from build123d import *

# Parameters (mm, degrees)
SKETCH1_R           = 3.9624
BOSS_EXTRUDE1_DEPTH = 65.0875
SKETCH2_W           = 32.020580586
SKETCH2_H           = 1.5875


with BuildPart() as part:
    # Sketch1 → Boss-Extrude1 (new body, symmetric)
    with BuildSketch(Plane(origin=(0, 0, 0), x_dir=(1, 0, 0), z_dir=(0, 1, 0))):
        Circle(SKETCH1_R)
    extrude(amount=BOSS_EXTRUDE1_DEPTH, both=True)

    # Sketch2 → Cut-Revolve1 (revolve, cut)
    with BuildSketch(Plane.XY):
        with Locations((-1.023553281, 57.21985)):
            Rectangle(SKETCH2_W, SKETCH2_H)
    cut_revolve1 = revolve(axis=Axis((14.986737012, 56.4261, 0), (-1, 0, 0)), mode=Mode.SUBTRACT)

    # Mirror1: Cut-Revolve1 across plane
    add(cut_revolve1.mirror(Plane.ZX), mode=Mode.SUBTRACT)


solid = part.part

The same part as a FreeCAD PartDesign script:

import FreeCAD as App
import Part
import Sketcher
from FreeCAD import Vector
Q = App.Units.Quantity


def add_polygon(sketch, points):
    """Adds a closed chain of lines whose ends are joined by coincident constraints."""
    first, n = sketch.GeometryCount, len(points)
    for a, b in zip(points, points[1:] + points[:1]):
        sketch.addGeometry(Part.LineSegment(App.Vector(*a, 0), App.Vector(*b, 0)), False)
    for i in range(n):
        sketch.addConstraint(Sketcher.Constraint("Coincident", first + i, 2, first + (i + 1) % n, 1))

doc = App.newDocument("Part")
body = doc.addObject("PartDesign::Body", "Body")

# Sketch on XZ plane
sketch1 = doc.addObject("Sketcher::SketchObject", "Sketch")
body.addObject(sketch1)
sketch1.AttachmentSupport = (doc.XZ_Plane, [""])
sketch1.MapMode = "FlatFace"
sketch1.addGeometry(Part.Circle(Vector(0, 0, 0), Vector(0, 0, 1), 4), False)
sketch1.addConstraint([
    Sketcher.Constraint("Coincident", 0, 3, -1, 1),
    Sketcher.Constraint("Diameter", 0, Q("0.312 in")),
])
pad1 = doc.addObject("PartDesign::Pad", "Pad")
body.addObject(pad1)
pad1.Profile = sketch1
pad1.Length = Q("5.125 in")
pad1.Midplane = True

# Sketch on XY plane
sketch2 = doc.addObject("Sketcher::SketchObject", "Sketch001")
body.addObject(sketch2)
sketch2.AttachmentSupport = (doc.XY_Plane, [""])
sketch2.MapMode = "FlatFace"
add_polygon(sketch2, [(-17, 58), (-17, 56.4), (15, 56.4), (15, 58)])  # lines 0-3
sketch2.addGeometry(Part.LineSegment(Vector(15, 56.4, 0), Vector(-17, 56.4, 0)), True)  # axis
sketch2.addConstraint([
    Sketcher.Constraint("Vertical", 0),
    Sketcher.Constraint("Horizontal", 1),
    Sketcher.Constraint("Vertical", 2),
    Sketcher.Constraint("Horizontal", 3),
    Sketcher.Constraint("Horizontal", 4),
    Sketcher.Constraint("Coincident", 4, 1, 1, 2),
    Sketcher.Constraint("Vertical", 3, 2, 4, 2),
    Sketcher.Constraint("DistanceY", 0, 2, 0, 1, Q("0.0625 in")),
    Sketcher.Constraint("DistanceY", -1, 1, 2, 2, Q("2.284 in")),
    Sketcher.Constraint("DistanceX", 1, 1, 1, 2, Q("32.020581 mm")),
    Sketcher.Constraint("DistanceX", 0, 2, -1, 1, Q("17.033844 mm")),
])
groove = doc.addObject("PartDesign::Groove", "Groove")
body.addObject(groove)
groove.Profile = sketch2
groove.ReferenceAxis = (sketch2, ["Axis0"])
groove.Angle = 360
doc.recompute()

mirrored = doc.addObject("PartDesign::Mirrored", "Mirrored")
body.addObject(mirrored)
mirrored.Originals = [groove]
mirrored.MirrorPlane = (doc.XZ_Plane, [""])
body.Tip = mirrored

doc.recompute()
